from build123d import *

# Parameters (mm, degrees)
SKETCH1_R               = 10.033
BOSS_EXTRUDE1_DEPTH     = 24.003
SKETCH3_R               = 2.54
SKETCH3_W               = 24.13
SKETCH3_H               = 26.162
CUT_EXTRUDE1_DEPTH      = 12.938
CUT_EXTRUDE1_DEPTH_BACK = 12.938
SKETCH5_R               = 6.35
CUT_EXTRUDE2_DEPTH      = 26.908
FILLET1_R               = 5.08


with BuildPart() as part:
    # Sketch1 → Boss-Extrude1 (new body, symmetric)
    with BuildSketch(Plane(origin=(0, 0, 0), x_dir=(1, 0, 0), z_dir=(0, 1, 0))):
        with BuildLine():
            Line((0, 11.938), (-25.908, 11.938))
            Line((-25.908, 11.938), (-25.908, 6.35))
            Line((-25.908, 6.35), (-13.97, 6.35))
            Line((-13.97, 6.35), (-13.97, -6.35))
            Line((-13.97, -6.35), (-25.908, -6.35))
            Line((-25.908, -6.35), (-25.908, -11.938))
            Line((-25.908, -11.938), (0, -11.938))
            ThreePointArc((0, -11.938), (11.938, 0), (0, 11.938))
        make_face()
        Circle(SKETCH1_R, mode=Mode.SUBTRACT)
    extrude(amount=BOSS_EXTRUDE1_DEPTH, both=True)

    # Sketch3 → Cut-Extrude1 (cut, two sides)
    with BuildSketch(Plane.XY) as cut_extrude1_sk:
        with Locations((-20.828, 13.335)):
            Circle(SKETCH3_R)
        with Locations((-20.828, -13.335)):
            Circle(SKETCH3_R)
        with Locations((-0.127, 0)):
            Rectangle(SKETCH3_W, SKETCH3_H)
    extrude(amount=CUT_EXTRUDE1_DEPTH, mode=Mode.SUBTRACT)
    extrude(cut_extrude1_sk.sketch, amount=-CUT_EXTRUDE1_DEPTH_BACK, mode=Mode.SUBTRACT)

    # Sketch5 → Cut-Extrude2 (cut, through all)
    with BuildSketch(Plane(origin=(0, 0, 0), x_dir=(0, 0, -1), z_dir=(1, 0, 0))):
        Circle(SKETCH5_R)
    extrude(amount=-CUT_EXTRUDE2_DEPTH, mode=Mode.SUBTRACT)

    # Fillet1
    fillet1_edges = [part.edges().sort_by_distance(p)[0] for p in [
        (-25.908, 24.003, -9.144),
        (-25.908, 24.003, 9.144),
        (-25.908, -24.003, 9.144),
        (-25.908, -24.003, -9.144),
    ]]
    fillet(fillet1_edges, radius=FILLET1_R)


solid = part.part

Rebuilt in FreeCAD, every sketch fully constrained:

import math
import FreeCAD as App
import Part
import Sketcher

V = App.Vector
Q = App.Units.Quantity


def edges_at(feature, points):
    """Names of the edges that pass closest to the given points."""
    edges = feature.Shape.Edges
    near = lambda p: min(range(len(edges)), key=lambda i: edges[i].distToShape(Part.Vertex(*p))[0])
    return sorted({f"Edge{near(p) + 1}" for p in points})


def add_polygon(sketch, points):
    """Adds a closed chain of lines whose ends are joined by coincident constraints."""
    first, n = sketch.GeometryCount, len(points)
    for a, b in zip(points, points[1:] + points[:1]):
        sketch.addGeometry(Part.LineSegment(App.Vector(*a, 0), App.Vector(*b, 0)), False)
    for i in range(n):
        sketch.addConstraint(Sketcher.Constraint("Coincident", first + i, 2, first + (i + 1) % n, 1))

doc = App.newDocument("Part")
body = doc.addObject("PartDesign::Body", "Body")

# Sketch on XZ plane
sketch1 = body.newObject("Sketcher::SketchObject", "Sketch")
sketch1.AttachmentSupport = (doc.getObject("XZ_Plane"), [""])
sketch1.MapMode = "FlatFace"
sketch1.addGeometry(Part.LineSegment(V(0, -11.938, 0), V(-25.908, -11.938, 0)), False)
sketch1.addGeometry(Part.LineSegment(V(-25.908, -11.938, 0), V(-25.908, -6.35, 0)), False)
sketch1.addGeometry(Part.LineSegment(V(-25.908, -6.35, 0), V(-13.97, -6.35, 0)), False)
sketch1.addGeometry(Part.LineSegment(V(-13.97, -6.35, 0), V(-13.97, 6.35, 0)), False)
sketch1.addGeometry(Part.LineSegment(V(-13.97, 6.35, 0), V(-25.908, 6.35, 0)), False)
sketch1.addGeometry(Part.LineSegment(V(-25.908, 6.35, 0), V(-25.908, 11.938, 0)), False)
sketch1.addGeometry(Part.LineSegment(V(-25.908, 11.938, 0), V(0, 11.938, 0)), False)
sketch1.addGeometry(Part.ArcOfCircle(Part.Circle(V(0, 0, 0), V(0, 0, 1), 11.938), math.radians(-90), math.radians(90)), False)
sketch1.addGeometry(Part.Circle(V(0, 0, 0), V(0, 0, 1), 10.033), False)
sketch1.addConstraint(Sketcher.Constraint("Coincident", 0, 2, 1, 1))
sketch1.addConstraint(Sketcher.Constraint("Coincident", 1, 2, 2, 1))
sketch1.addConstraint(Sketcher.Constraint("Coincident", 2, 2, 3, 1))
sketch1.addConstraint(Sketcher.Constraint("Coincident", 3, 2, 4, 1))
sketch1.addConstraint(Sketcher.Constraint("Coincident", 4, 2, 5, 1))
sketch1.addConstraint(Sketcher.Constraint("Coincident", 5, 2, 6, 1))
sketch1.addConstraint(Sketcher.Constraint("Tangent", 6, 2, 7, 2))
sketch1.addConstraint(Sketcher.Constraint("Tangent", 7, 1, 0, 1))
sketch1.addConstraint(Sketcher.Constraint("Horizontal", 0))
sketch1.addConstraint(Sketcher.Constraint("Vertical", 1))
sketch1.addConstraint(Sketcher.Constraint("Horizontal", 2))
sketch1.addConstraint(Sketcher.Constraint("Vertical", 3))
sketch1.addConstraint(Sketcher.Constraint("Horizontal", 4))
sketch1.addConstraint(Sketcher.Constraint("Vertical", 5))
sketch1.addConstraint(Sketcher.Constraint("Horizontal", 6))
sketch1.addConstraint(Sketcher.Constraint("Coincident", 7, 3, -1, 1))
sketch1.addConstraint(Sketcher.Constraint("Coincident", 8, 3, -1, 1))
sketch1.addConstraint(Sketcher.Constraint("Symmetric", 1, 2, 4, 2, -1))
sketch1.addConstraint(Sketcher.Constraint("Diameter", 8, Q("0.79 in")))
sketch1.addConstraint(Sketcher.Constraint("Radius", 7, Q("0.47 in")))
sketch1.addConstraint(Sketcher.Constraint("DistanceY", 3, 1, 3, 2, Q("0.5 in")))
sketch1.addConstraint(Sketcher.Constraint("DistanceX", 0, 2, 0, 1, Q("1.02 in")))
sketch1.addConstraint(Sketcher.Constraint("DistanceX", 2, 1, 2, 2, Q("0.47 in")))
pad1 = body.newObject("PartDesign::Pad", "Pad")
pad1.Profile = sketch1
pad1.Length = Q("1.89 in")
pad1.Midplane = True

# Sketch on XY plane
sketch2 = body.newObject("Sketcher::SketchObject", "Sketch001")
sketch2.AttachmentSupport = (doc.getObject("XY_Plane"), [""])
sketch2.MapMode = "FlatFace"
sketch2.addGeometry(Part.Circle(V(-20.828, 13.335, 0), V(0, 0, 1), 2.54), False)  # 0
sketch2.addGeometry(Part.Circle(V(-20.828, -13.335, 0), V(0, 0, 1), 2.54), False)  # 1
add_polygon(sketch2, [(-12.192, 13.081), (-12.192, -13.081), (11.938, -13.081), (11.938, 13.081)])  # lines 2-5
sketch2.addConstraint(Sketcher.Constraint("Vertical", 2))
sketch2.addConstraint(Sketcher.Constraint("Horizontal", 3))
sketch2.addConstraint(Sketcher.Constraint("Vertical", 4))
sketch2.addConstraint(Sketcher.Constraint("Horizontal", 5))
sketch2.addConstraint(Sketcher.Constraint("Equal", 0, 1))
sketch2.addConstraint(Sketcher.Constraint("Symmetric", 0, 3, 1, 3, -1))
sketch2.addConstraint(Sketcher.Constraint("Diameter", 0, Q("0.2 in")))
sketch2.addConstraint(Sketcher.Constraint("DistanceX", 3, 1, 3, 2, Q("0.95 in")))
sketch2.addConstraint(Sketcher.Constraint("DistanceY", 2, 2, 2, 1, Q("1.03 in")))
sketch2.addConstraint(Sketcher.Constraint("DistanceX", 0, 3, -1, 1, Q("0.82 in")))
sketch2.addConstraint(Sketcher.Constraint("DistanceX", 2, 2, -1, 1, Q("0.48 in")))
sketch2.addConstraint(Sketcher.Constraint("DistanceY", 1, 3, 0, 3, Q("1.05 in")))
sketch2.addConstraint(Sketcher.Constraint("DistanceY", 1, 3, 2, 2, Q("0.01 in")))
pocket1 = body.newObject("PartDesign::Pocket", "Pocket")
pocket1.Profile = sketch2
pocket1.Type = "ThroughAll"
pocket1.Midplane = True

# Sketch on YZ plane
sketch3 = body.newObject("Sketcher::SketchObject", "Sketch002")
sketch3.AttachmentSupport = (doc.getObject("YZ_Plane"), [""])
sketch3.MapMode = "FlatFace"
sketch3.addGeometry(Part.Circle(V(0, 0, 0), V(0, 0, 1), 6.35), False)
sketch3.addConstraint(Sketcher.Constraint("Coincident", 0, 3, -1, 1))
sketch3.addConstraint(Sketcher.Constraint("Diameter", 0, Q("0.5 in")))
pocket2 = body.newObject("PartDesign::Pocket", "Pocket001")
pocket2.Profile = sketch3
pocket2.Type = "ThroughAll"
doc.recompute()

fillet = body.newObject("PartDesign::Fillet", "Fillet")
fillet.Base = (pocket2, edges_at(pocket2, [
    (-25.908, 24.003, -9.144),
    (-25.908, 24.003, 9.144),
    (-25.908, -24.003, 9.144),
    (-25.908, -24.003, -9.144),
]))
fillet.Radius = Q("0.2 in")

doc.recompute()
